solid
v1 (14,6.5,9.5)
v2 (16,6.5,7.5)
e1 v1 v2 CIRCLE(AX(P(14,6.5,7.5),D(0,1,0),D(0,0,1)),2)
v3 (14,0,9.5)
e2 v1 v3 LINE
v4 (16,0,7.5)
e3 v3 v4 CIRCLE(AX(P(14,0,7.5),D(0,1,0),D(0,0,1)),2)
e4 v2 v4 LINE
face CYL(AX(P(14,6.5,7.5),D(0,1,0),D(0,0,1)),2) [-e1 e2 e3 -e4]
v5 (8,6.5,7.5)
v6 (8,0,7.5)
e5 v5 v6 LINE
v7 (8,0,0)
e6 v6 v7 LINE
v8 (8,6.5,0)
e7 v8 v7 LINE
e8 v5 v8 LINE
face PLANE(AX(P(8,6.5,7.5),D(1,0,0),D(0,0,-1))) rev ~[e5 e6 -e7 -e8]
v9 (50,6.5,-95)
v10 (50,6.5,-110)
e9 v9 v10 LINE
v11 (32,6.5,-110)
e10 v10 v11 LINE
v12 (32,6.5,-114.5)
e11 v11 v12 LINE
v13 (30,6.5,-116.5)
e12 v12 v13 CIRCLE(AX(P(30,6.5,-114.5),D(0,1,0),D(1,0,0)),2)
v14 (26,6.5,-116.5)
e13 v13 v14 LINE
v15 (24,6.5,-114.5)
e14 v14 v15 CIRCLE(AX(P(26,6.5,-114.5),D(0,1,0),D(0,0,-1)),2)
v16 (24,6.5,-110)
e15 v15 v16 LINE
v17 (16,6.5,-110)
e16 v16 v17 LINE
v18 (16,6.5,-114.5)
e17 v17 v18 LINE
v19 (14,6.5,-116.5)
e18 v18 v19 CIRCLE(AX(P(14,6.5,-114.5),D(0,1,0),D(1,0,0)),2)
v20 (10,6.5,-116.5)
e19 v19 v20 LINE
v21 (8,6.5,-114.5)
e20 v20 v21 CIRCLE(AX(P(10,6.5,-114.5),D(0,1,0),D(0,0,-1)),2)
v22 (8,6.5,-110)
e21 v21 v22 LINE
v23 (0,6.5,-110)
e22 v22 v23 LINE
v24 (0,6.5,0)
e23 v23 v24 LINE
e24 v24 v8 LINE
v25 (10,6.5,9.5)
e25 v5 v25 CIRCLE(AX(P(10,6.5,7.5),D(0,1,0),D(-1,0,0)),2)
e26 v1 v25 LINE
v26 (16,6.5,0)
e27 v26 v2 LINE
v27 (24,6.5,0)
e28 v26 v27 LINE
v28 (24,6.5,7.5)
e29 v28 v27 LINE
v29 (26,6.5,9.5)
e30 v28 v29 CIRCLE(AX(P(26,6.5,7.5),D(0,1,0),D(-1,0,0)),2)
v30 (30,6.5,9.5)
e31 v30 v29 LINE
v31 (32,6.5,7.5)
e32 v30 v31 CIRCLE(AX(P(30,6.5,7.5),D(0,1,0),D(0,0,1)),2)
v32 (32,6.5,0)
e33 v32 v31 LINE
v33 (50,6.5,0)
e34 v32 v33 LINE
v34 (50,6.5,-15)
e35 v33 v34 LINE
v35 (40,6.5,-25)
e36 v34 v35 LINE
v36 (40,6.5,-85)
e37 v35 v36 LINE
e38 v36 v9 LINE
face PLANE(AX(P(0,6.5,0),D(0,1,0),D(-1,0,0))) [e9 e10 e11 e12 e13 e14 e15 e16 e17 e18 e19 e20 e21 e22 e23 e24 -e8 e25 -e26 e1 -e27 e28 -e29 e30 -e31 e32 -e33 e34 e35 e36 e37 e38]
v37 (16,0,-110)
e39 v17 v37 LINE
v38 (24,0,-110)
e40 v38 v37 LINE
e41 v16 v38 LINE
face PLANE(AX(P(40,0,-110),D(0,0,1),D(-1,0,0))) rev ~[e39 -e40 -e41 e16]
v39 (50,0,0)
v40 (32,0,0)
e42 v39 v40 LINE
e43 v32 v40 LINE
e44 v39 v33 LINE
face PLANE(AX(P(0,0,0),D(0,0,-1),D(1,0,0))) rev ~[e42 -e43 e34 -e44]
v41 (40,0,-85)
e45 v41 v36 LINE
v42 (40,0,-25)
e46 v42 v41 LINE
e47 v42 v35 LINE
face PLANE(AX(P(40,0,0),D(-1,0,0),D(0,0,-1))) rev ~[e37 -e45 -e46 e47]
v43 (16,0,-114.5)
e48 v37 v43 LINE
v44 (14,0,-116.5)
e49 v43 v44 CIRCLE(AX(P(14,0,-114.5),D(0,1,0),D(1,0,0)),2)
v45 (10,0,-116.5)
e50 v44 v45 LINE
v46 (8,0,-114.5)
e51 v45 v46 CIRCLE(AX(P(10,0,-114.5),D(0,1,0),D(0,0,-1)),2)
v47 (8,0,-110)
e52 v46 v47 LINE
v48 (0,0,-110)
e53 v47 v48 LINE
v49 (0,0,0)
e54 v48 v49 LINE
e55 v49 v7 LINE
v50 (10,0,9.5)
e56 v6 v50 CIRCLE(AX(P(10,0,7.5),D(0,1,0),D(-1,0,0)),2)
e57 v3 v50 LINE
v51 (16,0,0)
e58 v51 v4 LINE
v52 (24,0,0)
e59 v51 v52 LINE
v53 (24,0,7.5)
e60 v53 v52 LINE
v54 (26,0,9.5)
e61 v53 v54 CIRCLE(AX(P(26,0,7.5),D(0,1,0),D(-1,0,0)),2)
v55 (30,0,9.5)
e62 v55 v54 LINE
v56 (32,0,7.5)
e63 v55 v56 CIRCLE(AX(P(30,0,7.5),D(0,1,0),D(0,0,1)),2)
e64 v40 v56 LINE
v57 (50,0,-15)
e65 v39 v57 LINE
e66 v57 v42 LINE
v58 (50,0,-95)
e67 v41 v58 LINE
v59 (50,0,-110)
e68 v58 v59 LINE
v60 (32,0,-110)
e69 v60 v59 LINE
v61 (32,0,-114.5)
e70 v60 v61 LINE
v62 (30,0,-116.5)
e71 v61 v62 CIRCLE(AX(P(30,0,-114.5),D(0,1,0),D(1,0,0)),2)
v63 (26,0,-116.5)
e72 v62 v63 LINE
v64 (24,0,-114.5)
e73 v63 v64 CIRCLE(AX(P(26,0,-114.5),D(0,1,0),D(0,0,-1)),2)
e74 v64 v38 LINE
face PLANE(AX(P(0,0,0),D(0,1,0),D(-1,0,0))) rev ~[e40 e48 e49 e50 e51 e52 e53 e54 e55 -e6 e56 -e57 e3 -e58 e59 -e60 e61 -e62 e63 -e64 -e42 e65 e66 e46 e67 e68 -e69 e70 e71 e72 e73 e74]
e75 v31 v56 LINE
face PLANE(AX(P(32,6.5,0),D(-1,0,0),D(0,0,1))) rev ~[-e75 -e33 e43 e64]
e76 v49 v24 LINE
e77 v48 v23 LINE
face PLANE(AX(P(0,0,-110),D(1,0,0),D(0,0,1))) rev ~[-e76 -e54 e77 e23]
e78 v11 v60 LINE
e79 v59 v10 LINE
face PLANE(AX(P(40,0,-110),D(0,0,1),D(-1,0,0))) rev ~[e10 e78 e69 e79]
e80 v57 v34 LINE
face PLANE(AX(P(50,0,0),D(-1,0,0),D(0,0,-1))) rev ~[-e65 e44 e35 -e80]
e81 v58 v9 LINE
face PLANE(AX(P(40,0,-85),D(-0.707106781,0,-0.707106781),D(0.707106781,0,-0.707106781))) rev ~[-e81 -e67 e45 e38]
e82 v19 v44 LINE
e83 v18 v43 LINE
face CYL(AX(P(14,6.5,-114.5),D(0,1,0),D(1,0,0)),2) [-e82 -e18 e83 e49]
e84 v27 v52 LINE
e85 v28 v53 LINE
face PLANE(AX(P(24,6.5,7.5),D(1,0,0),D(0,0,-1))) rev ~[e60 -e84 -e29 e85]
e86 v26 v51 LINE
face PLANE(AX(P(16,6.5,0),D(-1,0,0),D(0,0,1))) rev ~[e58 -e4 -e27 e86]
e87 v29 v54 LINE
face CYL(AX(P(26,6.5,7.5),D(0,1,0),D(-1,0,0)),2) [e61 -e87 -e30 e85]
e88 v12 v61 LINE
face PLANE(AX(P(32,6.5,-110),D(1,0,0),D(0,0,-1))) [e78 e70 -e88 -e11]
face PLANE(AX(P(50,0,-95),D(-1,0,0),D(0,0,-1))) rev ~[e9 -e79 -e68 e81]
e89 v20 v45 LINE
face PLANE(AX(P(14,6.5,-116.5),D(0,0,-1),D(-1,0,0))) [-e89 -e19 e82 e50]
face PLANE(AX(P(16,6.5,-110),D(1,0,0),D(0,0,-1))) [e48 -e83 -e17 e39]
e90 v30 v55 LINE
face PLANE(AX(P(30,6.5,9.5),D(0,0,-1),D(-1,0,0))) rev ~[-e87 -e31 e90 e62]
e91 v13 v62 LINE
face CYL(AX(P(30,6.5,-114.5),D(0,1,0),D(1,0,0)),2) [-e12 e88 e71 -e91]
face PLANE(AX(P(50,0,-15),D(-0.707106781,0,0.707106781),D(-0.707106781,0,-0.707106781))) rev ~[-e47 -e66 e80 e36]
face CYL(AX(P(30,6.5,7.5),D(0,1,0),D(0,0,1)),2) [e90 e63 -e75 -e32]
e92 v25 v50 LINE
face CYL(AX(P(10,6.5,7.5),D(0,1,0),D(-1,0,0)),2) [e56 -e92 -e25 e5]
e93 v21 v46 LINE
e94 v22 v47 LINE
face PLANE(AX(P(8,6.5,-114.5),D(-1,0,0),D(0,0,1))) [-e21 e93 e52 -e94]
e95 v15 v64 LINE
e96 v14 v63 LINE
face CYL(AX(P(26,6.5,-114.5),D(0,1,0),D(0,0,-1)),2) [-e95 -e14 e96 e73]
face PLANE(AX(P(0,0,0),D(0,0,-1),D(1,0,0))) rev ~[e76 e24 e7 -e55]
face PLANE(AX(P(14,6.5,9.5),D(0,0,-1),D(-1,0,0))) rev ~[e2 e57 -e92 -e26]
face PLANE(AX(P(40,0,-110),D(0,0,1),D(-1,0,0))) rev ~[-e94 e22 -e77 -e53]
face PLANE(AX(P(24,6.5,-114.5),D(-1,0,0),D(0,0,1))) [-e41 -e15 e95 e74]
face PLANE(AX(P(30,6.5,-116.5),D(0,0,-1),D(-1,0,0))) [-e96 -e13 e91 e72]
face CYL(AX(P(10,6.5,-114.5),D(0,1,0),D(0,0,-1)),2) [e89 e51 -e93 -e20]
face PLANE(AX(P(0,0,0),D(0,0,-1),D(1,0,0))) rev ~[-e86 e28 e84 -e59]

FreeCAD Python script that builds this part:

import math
import FreeCAD as App
import Part
import Sketcher

V = App.Vector
Q = App.Units.Quantity

doc = App.newDocument("Part")
body = doc.addObject("PartDesign::Body", "Body")

# Sketch on XZ plane
sketch1 = body.newObject("Sketcher::SketchObject", "Sketch")
sketch1.AttachmentSupport = (doc.getObject("XZ_Plane"), [""])
sketch1.MapMode = "FlatFace"
sketch1.addGeometry([
    Part.LineSegment(V(0, -110, 0), V(0, 0, 0)),
    Part.LineSegment(V(0, 0, 0), V(40, 0, 0)),
    Part.LineSegment(V(40, 0, 0), V(40, -110, 0)),
    Part.LineSegment(V(40, -110, 0), V(0, -110, 0)),
], False)
sketch1.addConstraint([
    Sketcher.Constraint("Coincident", 0, 2, 1, 1),
    Sketcher.Constraint("Coincident", 1, 2, 2, 1),
    Sketcher.Constraint("Coincident", 2, 2, 3, 1),
    Sketcher.Constraint("Coincident", 3, 2, 0, 1),
    Sketcher.Constraint("Vertical", 0),
    Sketcher.Constraint("Horizontal", 1),
    Sketcher.Constraint("Vertical", 2),
    Sketcher.Constraint("Horizontal", 3),
    Sketcher.Constraint("Coincident", 0, 2, -1, 1),
    Sketcher.Constraint("DistanceX", 1, 1, 1, 2, Q("40 mm")),
    Sketcher.Constraint("DistanceY", 0, 1, 0, 2, Q("110 mm")),
])
pad1 = body.newObject("PartDesign::Pad", "Pad")
pad1.Profile = sketch1
pad1.Length = 6.5
pad1.Reversed = True

# Sketch on XZ plane
sketch2 = body.newObject("Sketcher::SketchObject", "Sketch001")
sketch2.AttachmentSupport = (doc.getObject("XZ_Plane"), [""])
sketch2.MapMode = "FlatFace"
sketch2.AttachmentOffset = App.Placement(V(0, 0, -6.5), App.Rotation())
sketch2.addGeometry([
    Part.LineSegment(V(32, 7.5, 0), V(32, 0, 0)),  # 0
    Part.LineSegment(V(32, 0, 0), V(24, 0, 0)),  # 1
    Part.LineSegment(V(24, 0, 0), V(24, 7.5, 0)),  # 2
    Part.ArcOfCircle(Part.Circle(V(26, 7.5, 0), V(0, 0, 1), 2), math.radians(90), math.radians(180)),  # 3
    Part.LineSegment(V(26, 9.5, 0), V(30, 9.5, 0)),  # 4
    Part.ArcOfCircle(Part.Circle(V(30, 7.5, 0), V(0, 0, 1), 2), math.radians(0), math.radians(90)),  # 5
    Part.LineSegment(V(24, -110, 0), V(32, -110, 0)),  # 6
    Part.LineSegment(V(32, -110, 0), V(32, -114.5, 0)),  # 7
    Part.ArcOfCircle(Part.Circle(V(30, -114.5, 0), V(0, 0, 1), 2), math.radians(-90), math.radians(0)),  # 8
    Part.LineSegment(V(30, -116.5, 0), V(26, -116.5, 0)),  # 9
    Part.ArcOfCircle(Part.Circle(V(26, -114.5, 0), V(0, 0, 1), 2), math.radians(180), math.radians(270)),  # 10
    Part.LineSegment(V(24, -114.5, 0), V(24, -110, 0)),  # 11
    Part.LineSegment(V(16, 7.5, 0), V(16, 0, 0)),  # 12
    Part.LineSegment(V(16, 0, 0), V(8, 0, 0)),  # 13
    Part.LineSegment(V(8, 0, 0), V(8, 7.5, 0)),  # 14
    Part.ArcOfCircle(Part.Circle(V(10, 7.5, 0), V(0, 0, 1), 2), math.radians(90), math.radians(180)),  # 15
    Part.LineSegment(V(10, 9.5, 0), V(14, 9.5, 0)),  # 16
    Part.ArcOfCircle(Part.Circle(V(14, 7.5, 0), V(0, 0, 1), 2), math.radians(0), math.radians(90)),  # 17
    Part.LineSegment(V(8, -110, 0), V(16, -110, 0)),  # 18
    Part.LineSegment(V(16, -110, 0), V(16, -114.5, 0)),  # 19
    Part.ArcOfCircle(Part.Circle(V(14, -114.5, 0), V(0, 0, 1), 2), math.radians(-90), math.radians(0)),  # 20
    Part.LineSegment(V(14, -116.5, 0), V(10, -116.5, 0)),  # 21
    Part.ArcOfCircle(Part.Circle(V(10, -114.5, 0), V(0, 0, 1), 2), math.radians(180), math.radians(270)),  # 22
    Part.LineSegment(V(8, -114.5, 0), V(8, -110, 0)),  # 23
], False)
sketch2.addConstraint([
    Sketcher.Constraint("Coincident", 0, 2, 1, 1),
    Sketcher.Constraint("Coincident", 1, 2, 2, 1),
    Sketcher.Constraint("Tangent", 2, 2, 3, 2),
    Sketcher.Constraint("Tangent", 3, 1, 4, 1),
    Sketcher.Constraint("Tangent", 4, 2, 5, 2),
    Sketcher.Constraint("Tangent", 5, 1, 0, 1),
    Sketcher.Constraint("Coincident", 6, 2, 7, 1),
    Sketcher.Constraint("Tangent", 7, 2, 8, 2),
    Sketcher.Constraint("Tangent", 8, 1, 9, 1),
    Sketcher.Constraint("Tangent", 9, 2, 10, 2),
    Sketcher.Constraint("Tangent", 10, 1, 11, 1),
    Sketcher.Constraint("Coincident", 11, 2, 6, 1),
    Sketcher.Constraint("Coincident", 12, 2, 13, 1),
    Sketcher.Constraint("Coincident", 13, 2, 14, 1),
    Sketcher.Constraint("Tangent", 14, 2, 15, 2),
    Sketcher.Constraint("Tangent", 15, 1, 16, 1),
    Sketcher.Constraint("Tangent", 16, 2, 17, 2),
    Sketcher.Constraint("Tangent", 17, 1, 12, 1),
    Sketcher.Constraint("Coincident", 18, 2, 19, 1),
    Sketcher.Constraint("Tangent", 19, 2, 20, 2),
    Sketcher.Constraint("Tangent", 20, 1, 21, 1),
    Sketcher.Constraint("Tangent", 21, 2, 22, 2),
    Sketcher.Constraint("Tangent", 22, 1, 23, 1),
    Sketcher.Constraint("Coincident", 23, 2, 18, 1),
    Sketcher.Constraint("Vertical", 0),
    Sketcher.Constraint("Horizontal", 1),
    Sketcher.Constraint("Vertical", 2),
    Sketcher.Constraint("Horizontal", 4),
    Sketcher.Constraint("Horizontal", 6),
    Sketcher.Constraint("Vertical", 7),
    Sketcher.Constraint("Horizontal", 9),
    Sketcher.Constraint("Vertical", 11),
    Sketcher.Constraint("Vertical", 12),
    Sketcher.Constraint("Horizontal", 13),
    Sketcher.Constraint("Vertical", 14),
    Sketcher.Constraint("Horizontal", 16),
    Sketcher.Constraint("Horizontal", 18),
    Sketcher.Constraint("Vertical", 19),
    Sketcher.Constraint("Horizontal", 21),
    Sketcher.Constraint("Vertical", 23),
    Sketcher.Constraint("Equal", 3, 5),
    Sketcher.Constraint("Equal", 5, 8),
    Sketcher.Constraint("Equal", 8, 10),
    Sketcher.Constraint("Equal", 10, 15),
    Sketcher.Constraint("Equal", 15, 17),
    Sketcher.Constraint("Equal", 17, 20),
    Sketcher.Constraint("Equal", 20, 22),
    Sketcher.Constraint("PointOnObject", 0, 2, -1),
    Sketcher.Constraint("PointOnObject", 12, 2, -1),
    Sketcher.Constraint("Horizontal", 5, 3, 15, 3),
    Sketcher.Constraint("Horizontal", 10, 3, 20, 3),
    Sketcher.Constraint("Horizontal", 11, 2, 18, 2),
    Sketcher.Constraint("Vertical", 5, 3, 8, 3),
    Sketcher.Constraint("Vertical", 3, 3, 10, 3),
    Sketcher.Constraint("Vertical", 17, 3, 20, 3),
    Sketcher.Constraint("Vertical", 15, 3, 22, 3),
    Sketcher.Constraint("Equal", 6, 13),
    Sketcher.Constraint("Radius", 3, Q("2 mm")),
    Sketcher.Constraint("DistanceX", 1, 2, 1, 1, Q("8 mm")),
    Sketcher.Constraint("DistanceX", -1, 1, 13, 2, Q("8 mm")),
    Sketcher.Constraint("DistanceX", 12, 2, 1, 2, Q("8 mm")),
    Sketcher.Constraint("DistanceY", -1, 1, 3, 1, Q("9.5 mm")),
    Sketcher.Constraint("DistanceY", 8, 1, 6, 2, Q("6.5 mm")),
    Sketcher.Constraint("DistanceY", 6, 2, -1, 1, Q("110 mm")),
])
pad2 = body.newObject("PartDesign::Pad", "Pad001")
pad2.Profile = sketch2
pad2.Length = 6.5

# Sketch on XZ plane
sketch3 = body.newObject("Sketcher::SketchObject", "Sketch002")
sketch3.AttachmentSupport = (doc.getObject("XZ_Plane"), [""])
sketch3.MapMode = "FlatFace"
sketch3.addGeometry([
    Part.LineSegment(V(50, 0, 0), V(40, 0, 0)),  # 0
    Part.LineSegment(V(40, 0, 0), V(40, -25, 0)),  # 1
    Part.LineSegment(V(40, -25, 0), V(50, -15, 0)),  # 2
    Part.LineSegment(V(50, -15, 0), V(50, 0, 0)),  # 3
    Part.LineSegment(V(50, -95, 0), V(40, -85, 0)),  # 4
    Part.LineSegment(V(40, -85, 0), V(40, -110, 0)),  # 5
    Part.LineSegment(V(40, -110, 0), V(50, -110, 0)),  # 6
    Part.LineSegment(V(50, -110, 0), V(50, -95, 0)),  # 7
], False)
sketch3.addConstraint([
    Sketcher.Constraint("Coincident", 0, 2, 1, 1),
    Sketcher.Constraint("Coincident", 1, 2, 2, 1),
    Sketcher.Constraint("Coincident", 2, 2, 3, 1),
    Sketcher.Constraint("Coincident", 3, 2, 0, 1),
    Sketcher.Constraint("Coincident", 4, 2, 5, 1),
    Sketcher.Constraint("Coincident", 5, 2, 6, 1),
    Sketcher.Constraint("Coincident", 6, 2, 7, 1),
    Sketcher.Constraint("Coincident", 7, 2, 4, 1),
    Sketcher.Constraint("Horizontal", 0),
    Sketcher.Constraint("Vertical", 1),
    Sketcher.Constraint("Vertical", 3),
    Sketcher.Constraint("Vertical", 5),
    Sketcher.Constraint("Horizontal", 6),
    Sketcher.Constraint("Vertical", 7),
    Sketcher.Constraint("PointOnObject", 0, 2, -1),
    Sketcher.Constraint("Perpendicular", 2, 4),
    Sketcher.Constraint("Vertical", 1, 2, 4, 2),
    Sketcher.Constraint("Vertical", 3, 2, 6, 2),
    Sketcher.Constraint("Equal", 1, 5),
    Sketcher.Constraint("Equal", 3, 7),
    Sketcher.Constraint("DistanceX", 0, 2, 0, 1, Q("10 mm")),
    Sketcher.Constraint("DistanceY", 3, 1, 3, 2, Q("15 mm")),
    Sketcher.Constraint("DistanceX", -1, 1, 0, 2, Q("40 mm")),
    Sketcher.Constraint("DistanceY", 4, 2, -1, 1, Q("85 mm")),
])
pad3 = body.newObject("PartDesign::Pad", "Pad002")
pad3.Profile = sketch3
pad3.Length = 6.5
pad3.Reversed = True

doc.recompute()
